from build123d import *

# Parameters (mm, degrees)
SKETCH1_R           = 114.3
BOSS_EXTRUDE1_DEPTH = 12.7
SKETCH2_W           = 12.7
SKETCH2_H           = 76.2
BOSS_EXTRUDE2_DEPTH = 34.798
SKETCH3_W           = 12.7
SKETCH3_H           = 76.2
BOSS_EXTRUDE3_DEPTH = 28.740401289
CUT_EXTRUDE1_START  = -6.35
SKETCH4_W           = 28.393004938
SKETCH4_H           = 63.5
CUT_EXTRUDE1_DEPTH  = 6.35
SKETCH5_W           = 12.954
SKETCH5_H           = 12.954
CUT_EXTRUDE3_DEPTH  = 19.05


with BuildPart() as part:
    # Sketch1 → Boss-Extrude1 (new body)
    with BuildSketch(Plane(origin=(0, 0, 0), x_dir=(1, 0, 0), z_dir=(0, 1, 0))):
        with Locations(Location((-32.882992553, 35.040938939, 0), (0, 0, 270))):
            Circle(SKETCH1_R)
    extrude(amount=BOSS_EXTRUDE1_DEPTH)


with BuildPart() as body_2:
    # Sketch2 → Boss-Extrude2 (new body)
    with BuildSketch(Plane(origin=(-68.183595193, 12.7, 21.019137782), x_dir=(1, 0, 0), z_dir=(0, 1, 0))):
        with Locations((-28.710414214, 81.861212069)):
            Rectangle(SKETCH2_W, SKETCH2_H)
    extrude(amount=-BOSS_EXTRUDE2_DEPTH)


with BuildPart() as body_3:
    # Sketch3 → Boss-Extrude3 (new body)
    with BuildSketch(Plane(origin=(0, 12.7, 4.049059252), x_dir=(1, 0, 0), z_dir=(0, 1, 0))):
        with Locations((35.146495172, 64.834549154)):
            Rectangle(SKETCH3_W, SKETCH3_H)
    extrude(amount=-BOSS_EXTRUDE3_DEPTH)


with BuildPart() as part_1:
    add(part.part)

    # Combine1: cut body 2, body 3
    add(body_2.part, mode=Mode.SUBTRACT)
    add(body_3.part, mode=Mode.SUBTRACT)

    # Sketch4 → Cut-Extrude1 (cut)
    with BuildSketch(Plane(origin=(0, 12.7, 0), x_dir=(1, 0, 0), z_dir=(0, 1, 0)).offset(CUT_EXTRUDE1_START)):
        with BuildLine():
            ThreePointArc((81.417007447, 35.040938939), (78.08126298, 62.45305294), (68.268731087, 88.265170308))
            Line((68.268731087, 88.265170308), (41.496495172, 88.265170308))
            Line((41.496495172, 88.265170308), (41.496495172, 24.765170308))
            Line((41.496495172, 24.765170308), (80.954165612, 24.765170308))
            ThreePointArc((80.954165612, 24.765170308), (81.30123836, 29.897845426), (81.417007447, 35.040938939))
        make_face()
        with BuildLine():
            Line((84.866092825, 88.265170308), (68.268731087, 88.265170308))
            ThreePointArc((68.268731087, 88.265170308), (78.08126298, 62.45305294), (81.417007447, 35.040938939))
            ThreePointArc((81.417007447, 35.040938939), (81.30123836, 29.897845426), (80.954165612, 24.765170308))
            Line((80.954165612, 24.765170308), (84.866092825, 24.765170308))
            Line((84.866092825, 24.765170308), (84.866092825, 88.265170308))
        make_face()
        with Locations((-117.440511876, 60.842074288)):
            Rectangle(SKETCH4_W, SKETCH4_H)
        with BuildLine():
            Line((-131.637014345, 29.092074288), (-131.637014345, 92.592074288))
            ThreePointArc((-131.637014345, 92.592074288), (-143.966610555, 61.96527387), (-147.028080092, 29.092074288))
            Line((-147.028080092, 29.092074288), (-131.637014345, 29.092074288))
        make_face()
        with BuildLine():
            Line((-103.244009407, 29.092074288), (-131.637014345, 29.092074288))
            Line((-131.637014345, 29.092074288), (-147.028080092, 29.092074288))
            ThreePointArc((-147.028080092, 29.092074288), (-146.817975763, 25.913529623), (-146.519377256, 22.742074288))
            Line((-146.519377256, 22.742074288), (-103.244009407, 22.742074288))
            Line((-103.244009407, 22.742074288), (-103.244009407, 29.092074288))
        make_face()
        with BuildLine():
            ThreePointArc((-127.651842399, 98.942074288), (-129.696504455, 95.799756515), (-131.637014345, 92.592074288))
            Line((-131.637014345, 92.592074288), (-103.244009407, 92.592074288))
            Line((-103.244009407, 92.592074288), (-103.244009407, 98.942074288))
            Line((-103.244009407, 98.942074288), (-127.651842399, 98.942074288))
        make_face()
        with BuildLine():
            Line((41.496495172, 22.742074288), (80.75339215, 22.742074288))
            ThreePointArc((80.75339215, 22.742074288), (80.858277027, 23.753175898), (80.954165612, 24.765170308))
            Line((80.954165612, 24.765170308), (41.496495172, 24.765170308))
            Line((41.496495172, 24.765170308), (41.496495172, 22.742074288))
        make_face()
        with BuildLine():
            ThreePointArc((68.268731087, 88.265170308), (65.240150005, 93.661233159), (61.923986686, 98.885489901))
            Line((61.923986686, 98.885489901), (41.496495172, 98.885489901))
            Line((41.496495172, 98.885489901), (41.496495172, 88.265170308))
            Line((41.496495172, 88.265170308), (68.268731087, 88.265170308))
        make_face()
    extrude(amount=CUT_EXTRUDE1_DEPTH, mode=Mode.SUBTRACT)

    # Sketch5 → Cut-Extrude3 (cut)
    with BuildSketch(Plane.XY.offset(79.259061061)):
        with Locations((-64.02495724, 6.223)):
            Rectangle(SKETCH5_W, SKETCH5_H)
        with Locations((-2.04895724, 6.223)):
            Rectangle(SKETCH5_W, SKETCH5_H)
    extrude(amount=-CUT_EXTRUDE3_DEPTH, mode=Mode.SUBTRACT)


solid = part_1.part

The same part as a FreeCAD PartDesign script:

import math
import FreeCAD as App
import Part
import Sketcher

V = App.Vector
Q = App.Units.Quantity

doc = App.newDocument("Part")
body = doc.addObject("PartDesign::Body", "Body")

sketch1 = body.newObject("Sketcher::SketchObject", "Sketch")
sketch1.AttachmentSupport = (doc.getObject("XZ_Plane"), [""])
sketch1.MapMode = "FlatFace"
sketch1.addGeometry(Part.Circle(V(-32.882993, -35.040939, 0), V(0, 0, 1), 114.3), False)
sketch1.addConstraint(Sketcher.Constraint("Diameter", 0, Q("9 in")))
sketch1.addConstraint(Sketcher.Constraint("DistanceY", 0, 3, -1, 1, 35.040939))
sketch1.addConstraint(Sketcher.Constraint("DistanceX", 0, 3, -1, 1, 32.882993))
pad1 = body.newObject("PartDesign::Pad", "Pad")
pad1.Profile = sketch1
pad1.Length = Q("0.5 in")
pad1.Reversed = True
body2 = doc.addObject("PartDesign::Body", "Body001")

sketch2 = body2.newObject("Sketcher::SketchObject", "Sketch001")
sketch2.AttachmentSupport = (doc.getObject("XZ_Plane001"), [""])
sketch2.MapMode = "FlatFace"
sketch2.AttachmentOffset = App.Placement(V(0, 0, -0.5 * 25.4), App.Rotation())
sketch2.addGeometry(Part.LineSegment(V(-103.244009, -98.942074, 0), V(-103.244009, -22.742074, 0)), False)
sketch2.addGeometry(Part.LineSegment(V(-103.244009, -22.742074, 0), V(-90.544009, -22.742074, 0)), False)
sketch2.addGeometry(Part.LineSegment(V(-90.544009, -22.742074, 0), V(-90.544009, -98.942074, 0)), False)
sketch2.addGeometry(Part.LineSegment(V(-90.544009, -98.942074, 0), V(-103.244009, -98.942074, 0)), False)
sketch2.addConstraint(Sketcher.Constraint("Coincident", 0, 2, 1, 1))
sketch2.addConstraint(Sketcher.Constraint("Coincident", 1, 2, 2, 1))
sketch2.addConstraint(Sketcher.Constraint("Coincident", 2, 2, 3, 1))
sketch2.addConstraint(Sketcher.Constraint("Coincident", 3, 2, 0, 1))
sketch2.addConstraint(Sketcher.Constraint("Vertical", 0))
sketch2.addConstraint(Sketcher.Constraint("Horizontal", 1))
sketch2.addConstraint(Sketcher.Constraint("Vertical", 2))
sketch2.addConstraint(Sketcher.Constraint("Horizontal", 3))
sketch2.addConstraint(Sketcher.Constraint("DistanceY", 0, 1, 0, 2, Q("3 in")))
sketch2.addConstraint(Sketcher.Constraint("DistanceX", 1, 1, 1, 2, Q("0.5 in")))
sketch2.addConstraint(Sketcher.Constraint("DistanceX", 0, 2, -1, 1, 103.244009))
sketch2.addConstraint(Sketcher.Constraint("DistanceY", 0, 2, -1, 1, 22.742074))
pad2 = body2.newObject("PartDesign::Pad", "Pad001")
pad2.Profile = sketch2
pad2.Length = Q("1.37 in")
body3 = doc.addObject("PartDesign::Body", "Body002")

sketch3 = body3.newObject("Sketcher::SketchObject", "Sketch002")
sketch3.AttachmentSupport = (doc.getObject("XZ_Plane002"), [""])
sketch3.MapMode = "FlatFace"
sketch3.AttachmentOffset = App.Placement(V(0, 0, -0.5 * 25.4), App.Rotation())
sketch3.addGeometry(Part.LineSegment(V(28.796495, -98.88549, 0), V(28.796495, -22.68549, 0)), False)
sketch3.addGeometry(Part.LineSegment(V(28.796495, -22.68549, 0), V(41.496495, -22.68549, 0)), False)
sketch3.addGeometry(Part.LineSegment(V(41.496495, -22.68549, 0), V(41.496495, -98.88549, 0)), False)
sketch3.addGeometry(Part.LineSegment(V(41.496495, -98.88549, 0), V(28.796495, -98.88549, 0)), False)
sketch3.addConstraint(Sketcher.Constraint("Coincident", 0, 2, 1, 1))
sketch3.addConstraint(Sketcher.Constraint("Coincident", 1, 2, 2, 1))
sketch3.addConstraint(Sketcher.Constraint("Coincident", 2, 2, 3, 1))
sketch3.addConstraint(Sketcher.Constraint("Coincident", 3, 2, 0, 1))
sketch3.addConstraint(Sketcher.Constraint("Vertical", 0))
sketch3.addConstraint(Sketcher.Constraint("Horizontal", 1))
sketch3.addConstraint(Sketcher.Constraint("Vertical", 2))
sketch3.addConstraint(Sketcher.Constraint("Horizontal", 3))
sketch3.addConstraint(Sketcher.Constraint("DistanceY", 0, 1, 0, 2, Q("3 in")))
sketch3.addConstraint(Sketcher.Constraint("DistanceX", 1, 1, 1, 2, Q("0.5 in")))
sketch3.addConstraint(Sketcher.Constraint("DistanceY", 0, 2, -1, 1, 22.68549))
sketch3.addConstraint(Sketcher.Constraint("DistanceX", -1, 1, 0, 2, 28.796495))
pad3 = body3.newObject("PartDesign::Pad", "Pad002")
pad3.Profile = sketch3
pad3.Length = 28.740401
doc.recompute()

boolean = body.newObject("PartDesign::Boolean", "Boolean")
boolean.Type = "Cut"
boolean.addObjects([body2])
doc.recompute()

boolean2 = body.newObject("PartDesign::Boolean", "Boolean001")
boolean2.Type = "Cut"
boolean2.addObjects([body3])

sketch4 = body.newObject("Sketcher::SketchObject", "Sketch003")
sketch4.AttachmentSupport = (doc.getObject("XZ_Plane"), [""])
sketch4.MapMode = "FlatFace"
sketch4.AttachmentOffset = App.Placement(V(0, 0, -0.25 * 25.4), App.Rotation())
sketch4.addGeometry(Part.LineSegment(V(41.496495, -22.742074, 0), V(80.753392, -22.742074, 0)), False)
sketch4.addGeometry(Part.ArcOfCircle(Part.Circle(V(-32.882983, -35.040938, 0), V(0, 0, 1), 114.299991), math.radians(5.157954), math.radians(6.177078)), False)
sketch4.addGeometry(Part.LineSegment(V(80.954166, -24.76517, 0), V(84.866093, -24.76517, 0)), False)
sketch4.addGeometry(Part.LineSegment(V(84.866093, -24.76517, 0), V(84.866093, -88.26517, 0)), False)
sketch4.addGeometry(Part.LineSegment(V(84.866093, -88.26517, 0), V(68.268731, -88.26517, 0)), False)
sketch4.addGeometry(Part.ArcOfCircle(Part.Circle(V(-32.882993, -35.040939, 0), V(0, 0, 1), 114.3), math.radians(-33.956961), math.radians(-27.752544)), False)
sketch4.addGeometry(Part.LineSegment(V(61.923987, -98.88549, 0), V(41.496495, -98.88549, 0)), False)
sketch4.addGeometry(Part.LineSegment(V(41.496495, -98.88549, 0), V(41.496495, -22.742074, 0)), False)
sketch4.addGeometry(Part.ArcOfCircle(Part.Circle(V(-32.882993, -35.040939, 0), V(0, 0, 1), 114.3), math.radians(177.016633), math.radians(210.232459)), False)
sketch4.addGeometry(Part.ArcOfCircle(Part.Circle(V(-32.882991, -35.040939, 0), V(0, 0, 1), 114.300001), math.radians(173.822922), math.radians(177.016632)), False)
sketch4.addGeometry(Part.LineSegment(V(-146.519377, -22.742074, 0), V(-103.244009, -22.742074, 0)), False)
sketch4.addGeometry(Part.LineSegment(V(-103.244009, -22.742074, 0), V(-103.244009, -98.942074, 0)), False)
sketch4.addGeometry(Part.LineSegment(V(-103.244009, -98.942074, 0), V(-127.651842, -98.942074, 0)), False)
sketch4.addGeometry(Part.ArcOfCircle(Part.Circle(V(-32.882993, -35.040939, 0), V(0, 0, 1), 114.3), math.radians(-149.767541), math.radians(-146.008836)), False)
sketch4.addConstraint(Sketcher.Constraint("Coincident", 0, 2, 1, 2))
sketch4.addConstraint(Sketcher.Constraint("Coincident", 1, 1, 2, 1))
sketch4.addConstraint(Sketcher.Constraint("Coincident", 2, 2, 3, 1))
sketch4.addConstraint(Sketcher.Constraint("Coincident", 3, 2, 4, 1))
sketch4.addConstraint(Sketcher.Constraint("Coincident", 4, 2, 5, 2))
sketch4.addConstraint(Sketcher.Constraint("Coincident", 5, 1, 6, 1))
sketch4.addConstraint(Sketcher.Constraint("Coincident", 6, 2, 7, 1))
sketch4.addConstraint(Sketcher.Constraint("Coincident", 7, 2, 0, 1))
sketch4.addConstraint(Sketcher.Constraint("Tangent", 8, 1, 9, 2))
sketch4.addConstraint(Sketcher.Constraint("Coincident", 9, 1, 10, 1))
sketch4.addConstraint(Sketcher.Constraint("Coincident", 10, 2, 11, 1))
sketch4.addConstraint(Sketcher.Constraint("Coincident", 11, 2, 12, 1))
sketch4.addConstraint(Sketcher.Constraint("Coincident", 12, 2, 13, 2))
sketch4.addConstraint(Sketcher.Constraint("Tangent", 13, 1, 8, 2))
sketch4.addConstraint(Sketcher.Constraint("Horizontal", 0))
sketch4.addConstraint(Sketcher.Constraint("Horizontal", 2))
sketch4.addConstraint(Sketcher.Constraint("Vertical", 3))
sketch4.addConstraint(Sketcher.Constraint("Horizontal", 4))
sketch4.addConstraint(Sketcher.Constraint("Horizontal", 6))
sketch4.addConstraint(Sketcher.Constraint("Vertical", 7))
sketch4.addConstraint(Sketcher.Constraint("Horizontal", 10))
sketch4.addConstraint(Sketcher.Constraint("Vertical", 11))
sketch4.addConstraint(Sketcher.Constraint("Horizontal", 12))
sketch4.addConstraint(Sketcher.Constraint("Coincident", 5, 3, 1, 3))
sketch4.addConstraint(Sketcher.Constraint("Coincident", 8, 3, 1, 3))
sketch4.addConstraint(Sketcher.Constraint("Equal", 5, 8))
sketch4.addConstraint(Sketcher.Constraint("Equal", 8, 9))
sketch4.addConstraint(Sketcher.Constraint("Equal", 9, 13))
sketch4.addConstraint(Sketcher.Constraint("Horizontal", 7, 2, 9, 1))
sketch4.addConstraint(Sketcher.Constraint("Radius", 5, Q("4.5 in")))
sketch4.addConstraint(Sketcher.Constraint("DistanceY", 11, 2, 11, 1, Q("3 in")))
sketch4.addConstraint(Sketcher.Constraint("DistanceY", 3, 2, 3, 1, Q("2.5 in")))
sketch4.addConstraint(Sketcher.Constraint("DistanceY", 13, 1, 8, 1, Q("2.5 in")))
sketch4.addConstraint(Sketcher.Constraint("DistanceY", 8, 1, 9, 1, Q("0.25 in")))
sketch4.addConstraint(Sketcher.Constraint("Radius", 1, 114.299991))
sketch4.addConstraint(Sketcher.Constraint("DistanceX", 4, 2, 4, 1, 16.597362))
sketch4.addConstraint(Sketcher.Constraint("DistanceX", 6, 2, 6, 1, 20.427492))
sketch4.addConstraint(Sketcher.Constraint("DistanceX", 0, 2, 2, 2, 4.112701))
sketch4.addConstraint(Sketcher.Constraint("DistanceX", 0, 1, 0, 2, 39.256897))
sketch4.addConstraint(Sketcher.Constraint("DistanceX", 2, 1, 2, 2, 3.911927))
sketch4.addConstraint(Sketcher.Constraint("DistanceX", 10, 1, 10, 2, 43.275368))
sketch4.addConstraint(Sketcher.Constraint("DistanceY", 1, 3, -1, 1, 35.040938))
sketch4.addConstraint(Sketcher.Constraint("DistanceX", 9, 3, -1, 1, 32.882991))
pocket1 = body.newObject("PartDesign::Pocket", "Pocket")
pocket1.Profile = sketch4
pocket1.Length = Q("0.25 in")

sketch5 = body.newObject("Sketcher::SketchObject", "Sketch004")
sketch5.AttachmentSupport = (doc.getObject("XY_Plane"), [""])
sketch5.MapMode = "FlatFace"
sketch5.AttachmentOffset = App.Placement(V(0, 0, 79.259061), App.Rotation())
sketch5.addGeometry(Part.LineSegment(V(-70.501957, 12.7, 0), V(-70.501957, -0.254, 0)), False)
sketch5.addGeometry(Part.LineSegment(V(-70.501957, -0.254, 0), V(-57.547957, -0.254, 0)), False)
sketch5.addGeometry(Part.LineSegment(V(-57.547957, -0.254, 0), V(-57.547957, 12.7, 0)), False)
sketch5.addGeometry(Part.LineSegment(V(-57.547957, 12.7, 0), V(-70.501957, 12.7, 0)), False)
sketch5.addGeometry(Part.LineSegment(V(-8.525957, 12.7, 0), V(-8.525957, -0.254, 0)), False)
sketch5.addGeometry(Part.LineSegment(V(-8.525957, -0.254, 0), V(4.428043, -0.254, 0)), False)
sketch5.addGeometry(Part.LineSegment(V(4.428043, -0.254, 0), V(4.428043, 12.7, 0)), False)
sketch5.addGeometry(Part.LineSegment(V(4.428043, 12.7, 0), V(-8.525957, 12.7, 0)), False)
sketch5.addConstraint(Sketcher.Constraint("Coincident", 0, 2, 1, 1))
sketch5.addConstraint(Sketcher.Constraint("Coincident", 1, 2, 2, 1))
sketch5.addConstraint(Sketcher.Constraint("Coincident", 2, 2, 3, 1))
sketch5.addConstraint(Sketcher.Constraint("Coincident", 3, 2, 0, 1))
sketch5.addConstraint(Sketcher.Constraint("Coincident", 4, 2, 5, 1))
sketch5.addConstraint(Sketcher.Constraint("Coincident", 5, 2, 6, 1))
sketch5.addConstraint(Sketcher.Constraint("Coincident", 6, 2, 7, 1))
sketch5.addConstraint(Sketcher.Constraint("Coincident", 7, 2, 4, 1))
sketch5.addConstraint(Sketcher.Constraint("Vertical", 0))
sketch5.addConstraint(Sketcher.Constraint("Horizontal", 1))
sketch5.addConstraint(Sketcher.Constraint("Vertical", 2))
sketch5.addConstraint(Sketcher.Constraint("Horizontal", 3))
sketch5.addConstraint(Sketcher.Constraint("Vertical", 4))
sketch5.addConstraint(Sketcher.Constraint("Horizontal", 5))
sketch5.addConstraint(Sketcher.Constraint("Vertical", 6))
sketch5.addConstraint(Sketcher.Constraint("Horizontal", 7))
sketch5.addConstraint(Sketcher.Constraint("Horizontal", 1, 2, 4, 2))
sketch5.addConstraint(Sketcher.Constraint("Horizontal", 3, 2, 6, 2))
sketch5.addConstraint(Sketcher.Constraint("Equal", 3, 5))
sketch5.addConstraint(Sketcher.Constraint("Equal", 7, 0))
sketch5.addConstraint(Sketcher.Constraint("DistanceX", 1, 1, 1, 2, Q("0.51 in")))
sketch5.addConstraint(Sketcher.Constraint("DistanceY", -1, 1, 2, 2, Q("0.5 in")))
sketch5.addConstraint(Sketcher.Constraint("DistanceX", 1, 2, 4, 2, Q("1.93 in")))
sketch5.addConstraint(Sketcher.Constraint("DistanceX", 0, 2, -1, 1, 70.501957))
pocket2 = body.newObject("PartDesign::Pocket", "Pocket001")
pocket2.Profile = sketch5
pocket2.Length = Q("0.75 in")

doc.recompute()
